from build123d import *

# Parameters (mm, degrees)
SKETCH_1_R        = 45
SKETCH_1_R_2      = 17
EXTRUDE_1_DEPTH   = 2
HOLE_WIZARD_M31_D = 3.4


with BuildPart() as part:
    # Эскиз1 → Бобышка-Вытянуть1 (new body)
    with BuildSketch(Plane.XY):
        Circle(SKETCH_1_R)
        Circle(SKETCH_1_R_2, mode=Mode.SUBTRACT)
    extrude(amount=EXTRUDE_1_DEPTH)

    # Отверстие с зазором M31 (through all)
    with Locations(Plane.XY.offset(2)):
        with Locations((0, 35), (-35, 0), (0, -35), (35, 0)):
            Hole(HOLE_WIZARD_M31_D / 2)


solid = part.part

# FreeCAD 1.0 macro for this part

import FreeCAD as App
import Part
import Sketcher
from FreeCAD import Vector
Q = App.Units.Quantity

doc = App.newDocument("Part")
body = doc.addObject("PartDesign::Body", "Body")

# Sketch on XY plane
sketch1 = body.newObject("Sketcher::SketchObject", "Sketch")
sketch1.AttachmentSupport = (doc.getObject("XY_Plane"), [""])
sketch1.MapMode = "FlatFace"
sketch1.addGeometry([
    Part.Circle(Vector(0, 0, 0), Vector(0, 0, 1), 45),
    Part.Circle(Vector(0, 0, 0), Vector(0, 0, 1), 17),
], False)
sketch1.addConstraint([
    Sketcher.Constraint("Coincident", 0, 3, -1, 1),
    Sketcher.Constraint("Coincident", 1, 3, -1, 1),
    Sketcher.Constraint("Diameter", 0, Q("90 mm")),
    Sketcher.Constraint("Diameter", 1, Q("34 mm")),
])
pad1 = body.newObject("PartDesign::Pad", "Pad")
pad1.Profile = sketch1
pad1.Length = 2

# Sketch on XY plane
sketch2 = body.newObject("Sketcher::SketchObject", "Sketch001")
sketch2.AttachmentSupport = (doc.getObject("XY_Plane"), [""])
sketch2.MapMode = "FlatFace"
sketch2.AttachmentOffset = App.Placement(Vector(0, 0, 2), App.Rotation())
sketch2.addGeometry([
    Part.Circle(Vector(0, 35, 0), Vector(0, 0, 1), 1.7),
    Part.Circle(Vector(-35, 0, 0), Vector(0, 0, 1), 1.7),
    Part.Circle(Vector(0, -35, 0), Vector(0, 0, 1), 1.7),
    Part.Circle(Vector(35, 0, 0), Vector(0, 0, 1), 1.7),
], False)
sketch2.addConstraint([
    Sketcher.Constraint("Equal", 0, 1),
    Sketcher.Constraint("Equal", 1, 2),
    Sketcher.Constraint("Equal", 2, 3),
    Sketcher.Constraint("Symmetric", 0, 3, 2, 3, -1, 1),
    Sketcher.Constraint("Symmetric", 1, 3, 3, 3, -1, 1),
    Sketcher.Constraint("PointOnObject", 0, 3, -2),
    Sketcher.Constraint("PointOnObject", 1, 3, -1),
    Sketcher.Constraint("Diameter", 0, Q("3.4 mm")),
    Sketcher.Constraint("DistanceY", -1, 1, 0, 3, Q("35 mm")),
    Sketcher.Constraint("DistanceX", 1, 3, -1, 1, Q("35 mm")),
])
doc.recompute()
hole = body.newObject("PartDesign::Hole", "Hole")
hole.Profile = sketch2
hole.ThreadType = "None"
hole.Diameter = 3.4
hole.DepthType = "ThroughAll"

doc.recompute()
